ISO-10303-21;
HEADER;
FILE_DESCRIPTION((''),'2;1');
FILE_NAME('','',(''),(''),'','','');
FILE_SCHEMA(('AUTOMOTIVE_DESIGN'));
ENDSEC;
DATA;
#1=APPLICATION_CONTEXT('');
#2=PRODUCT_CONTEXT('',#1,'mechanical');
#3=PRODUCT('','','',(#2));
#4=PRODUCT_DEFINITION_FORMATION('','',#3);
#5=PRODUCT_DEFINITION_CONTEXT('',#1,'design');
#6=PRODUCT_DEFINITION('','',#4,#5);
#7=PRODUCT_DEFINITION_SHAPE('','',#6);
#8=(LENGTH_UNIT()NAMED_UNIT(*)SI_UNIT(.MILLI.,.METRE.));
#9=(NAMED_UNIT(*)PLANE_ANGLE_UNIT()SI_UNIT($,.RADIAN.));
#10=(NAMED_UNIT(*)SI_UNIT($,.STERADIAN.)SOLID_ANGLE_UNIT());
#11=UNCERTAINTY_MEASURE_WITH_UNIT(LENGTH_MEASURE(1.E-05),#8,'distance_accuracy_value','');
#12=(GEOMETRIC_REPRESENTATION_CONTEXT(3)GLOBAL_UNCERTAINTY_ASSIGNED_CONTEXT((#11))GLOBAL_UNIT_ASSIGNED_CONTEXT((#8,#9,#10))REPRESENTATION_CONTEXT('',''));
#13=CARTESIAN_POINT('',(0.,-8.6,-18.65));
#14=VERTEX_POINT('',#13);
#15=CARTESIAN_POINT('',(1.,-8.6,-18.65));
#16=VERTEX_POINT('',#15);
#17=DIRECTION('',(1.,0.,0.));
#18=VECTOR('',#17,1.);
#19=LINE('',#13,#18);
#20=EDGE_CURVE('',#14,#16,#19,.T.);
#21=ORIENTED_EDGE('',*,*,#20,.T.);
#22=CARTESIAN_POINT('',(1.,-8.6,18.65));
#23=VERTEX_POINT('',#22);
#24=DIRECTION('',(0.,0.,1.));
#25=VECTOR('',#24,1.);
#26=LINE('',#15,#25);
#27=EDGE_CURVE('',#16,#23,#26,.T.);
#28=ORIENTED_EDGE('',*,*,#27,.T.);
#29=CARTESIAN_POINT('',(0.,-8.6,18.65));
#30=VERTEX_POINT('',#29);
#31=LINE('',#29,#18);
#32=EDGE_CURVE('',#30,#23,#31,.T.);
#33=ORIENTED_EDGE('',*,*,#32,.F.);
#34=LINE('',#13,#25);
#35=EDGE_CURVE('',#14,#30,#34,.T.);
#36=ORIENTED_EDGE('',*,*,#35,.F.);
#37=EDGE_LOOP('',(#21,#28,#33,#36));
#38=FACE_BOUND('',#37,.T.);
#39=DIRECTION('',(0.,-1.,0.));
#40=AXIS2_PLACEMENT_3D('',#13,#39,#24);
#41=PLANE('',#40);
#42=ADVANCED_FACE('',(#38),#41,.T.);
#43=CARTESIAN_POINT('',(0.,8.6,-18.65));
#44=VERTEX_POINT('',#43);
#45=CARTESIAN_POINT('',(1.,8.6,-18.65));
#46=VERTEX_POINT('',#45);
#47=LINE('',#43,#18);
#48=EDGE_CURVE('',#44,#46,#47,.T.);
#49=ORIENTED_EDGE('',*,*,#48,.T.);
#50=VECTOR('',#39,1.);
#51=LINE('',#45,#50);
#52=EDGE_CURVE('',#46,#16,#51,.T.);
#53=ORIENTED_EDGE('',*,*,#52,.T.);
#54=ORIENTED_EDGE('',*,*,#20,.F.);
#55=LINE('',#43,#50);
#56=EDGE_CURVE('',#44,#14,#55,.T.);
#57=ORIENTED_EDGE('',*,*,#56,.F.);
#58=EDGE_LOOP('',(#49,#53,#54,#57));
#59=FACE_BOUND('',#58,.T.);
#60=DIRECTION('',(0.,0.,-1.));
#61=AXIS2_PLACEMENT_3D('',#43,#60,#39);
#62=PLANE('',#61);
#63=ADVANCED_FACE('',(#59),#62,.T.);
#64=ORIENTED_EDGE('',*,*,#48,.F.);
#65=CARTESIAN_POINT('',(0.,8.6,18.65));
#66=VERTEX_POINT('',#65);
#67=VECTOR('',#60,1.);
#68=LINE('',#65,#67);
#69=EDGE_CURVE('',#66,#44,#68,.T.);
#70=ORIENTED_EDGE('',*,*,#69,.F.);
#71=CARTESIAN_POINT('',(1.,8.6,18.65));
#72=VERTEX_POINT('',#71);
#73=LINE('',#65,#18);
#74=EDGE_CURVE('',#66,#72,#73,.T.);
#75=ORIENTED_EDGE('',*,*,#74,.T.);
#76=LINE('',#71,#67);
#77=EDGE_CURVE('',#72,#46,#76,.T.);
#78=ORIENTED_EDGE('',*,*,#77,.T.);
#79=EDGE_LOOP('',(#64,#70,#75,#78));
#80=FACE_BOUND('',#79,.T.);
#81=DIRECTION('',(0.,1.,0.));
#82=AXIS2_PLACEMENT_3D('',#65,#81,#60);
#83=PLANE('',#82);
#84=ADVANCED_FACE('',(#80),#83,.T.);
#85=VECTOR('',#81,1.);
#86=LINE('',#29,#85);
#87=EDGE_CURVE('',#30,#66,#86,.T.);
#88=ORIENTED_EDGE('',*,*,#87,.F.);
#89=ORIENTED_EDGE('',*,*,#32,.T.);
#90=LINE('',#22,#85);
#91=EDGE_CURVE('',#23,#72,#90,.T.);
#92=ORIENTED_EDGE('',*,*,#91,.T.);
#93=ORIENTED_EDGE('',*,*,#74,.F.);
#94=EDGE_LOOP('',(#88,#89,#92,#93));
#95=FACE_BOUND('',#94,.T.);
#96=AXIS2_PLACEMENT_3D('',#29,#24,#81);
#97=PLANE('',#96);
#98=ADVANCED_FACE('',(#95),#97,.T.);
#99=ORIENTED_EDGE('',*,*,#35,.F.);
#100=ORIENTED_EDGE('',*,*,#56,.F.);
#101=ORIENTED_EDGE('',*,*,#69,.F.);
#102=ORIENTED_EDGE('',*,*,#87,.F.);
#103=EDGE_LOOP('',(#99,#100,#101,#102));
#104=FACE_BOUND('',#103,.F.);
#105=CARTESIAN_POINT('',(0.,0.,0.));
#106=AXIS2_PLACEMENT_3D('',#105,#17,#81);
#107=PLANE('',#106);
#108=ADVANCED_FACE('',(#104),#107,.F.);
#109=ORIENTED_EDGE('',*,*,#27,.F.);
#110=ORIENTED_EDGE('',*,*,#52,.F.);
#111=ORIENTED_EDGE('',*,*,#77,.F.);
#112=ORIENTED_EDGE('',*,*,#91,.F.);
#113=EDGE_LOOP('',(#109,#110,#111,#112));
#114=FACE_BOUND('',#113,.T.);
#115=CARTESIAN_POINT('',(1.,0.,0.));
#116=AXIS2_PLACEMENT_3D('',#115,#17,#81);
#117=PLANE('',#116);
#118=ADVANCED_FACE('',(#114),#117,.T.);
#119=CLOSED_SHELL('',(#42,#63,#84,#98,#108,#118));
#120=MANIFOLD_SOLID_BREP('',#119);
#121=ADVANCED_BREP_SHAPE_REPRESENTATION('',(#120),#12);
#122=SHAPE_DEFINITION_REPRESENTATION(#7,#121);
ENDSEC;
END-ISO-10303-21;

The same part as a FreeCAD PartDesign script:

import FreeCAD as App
import Part
import Sketcher
Q = App.Units.Quantity


def add_polygon(sketch, points):
    """Adds a closed chain of lines whose ends are joined by coincident constraints."""
    first, n = sketch.GeometryCount, len(points)
    for a, b in zip(points, points[1:] + points[:1]):
        sketch.addGeometry(Part.LineSegment(App.Vector(*a, 0), App.Vector(*b, 0)), False)
    for i in range(n):
        sketch.addConstraint(Sketcher.Constraint("Coincident", first + i, 2, first + (i + 1) % n, 1))

doc = App.newDocument("Part")
body = doc.addObject("PartDesign::Body", "Body")

# Sketch on YZ plane
sketch1 = doc.addObject("Sketcher::SketchObject", "Sketch")
body.addObject(sketch1)
sketch1.AttachmentSupport = (doc.YZ_Plane, [""])
sketch1.MapMode = "FlatFace"
add_polygon(sketch1, [(9, 19), (-9, 19), (-9, -19), (9, -19)])  # lines 0-3
sketch1.addConstraint([
    Sketcher.Constraint("Horizontal", 0),
    Sketcher.Constraint("Vertical", 1),
    Sketcher.Constraint("Horizontal", 2),
    Sketcher.Constraint("Vertical", 3),
    Sketcher.Constraint("Symmetric", 0, 2, 2, 2, -1, 1),
    Sketcher.Constraint("DistanceX", 0, 2, 0, 1, Q("17.2 mm")),
    Sketcher.Constraint("DistanceY", 1, 2, 1, 1, Q("37.3 mm")),
])
pad1 = doc.addObject("PartDesign::Pad", "Pad")
body.addObject(pad1)
pad1.Profile = sketch1
pad1.Length = 1

doc.recompute()
